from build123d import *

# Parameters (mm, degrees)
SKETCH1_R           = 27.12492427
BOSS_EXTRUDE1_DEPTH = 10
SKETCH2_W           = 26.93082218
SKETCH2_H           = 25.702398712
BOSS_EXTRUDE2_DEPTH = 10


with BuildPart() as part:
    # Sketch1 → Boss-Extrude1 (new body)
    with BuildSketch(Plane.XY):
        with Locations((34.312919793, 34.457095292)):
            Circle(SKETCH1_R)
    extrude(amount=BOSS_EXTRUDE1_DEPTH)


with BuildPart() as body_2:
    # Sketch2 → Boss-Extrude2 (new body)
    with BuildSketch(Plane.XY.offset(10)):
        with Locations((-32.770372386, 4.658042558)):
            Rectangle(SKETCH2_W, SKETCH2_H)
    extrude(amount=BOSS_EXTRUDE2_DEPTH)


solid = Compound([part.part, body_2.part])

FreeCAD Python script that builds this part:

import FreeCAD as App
import Part
import Sketcher

V = App.Vector
Q = App.Units.Quantity


def add_polygon(sketch, points):
    """Adds a closed chain of lines whose ends are joined by coincident constraints."""
    first, n = sketch.GeometryCount, len(points)
    for a, b in zip(points, points[1:] + points[:1]):
        sketch.addGeometry(Part.LineSegment(App.Vector(*a, 0), App.Vector(*b, 0)), False)
    for i in range(n):
        sketch.addConstraint(Sketcher.Constraint("Coincident", first + i, 2, first + (i + 1) % n, 1))

doc = App.newDocument("Part")
body = doc.addObject("PartDesign::Body", "Body")

sketch1 = body.newObject("Sketcher::SketchObject", "Sketch")
sketch1.AttachmentSupport = (doc.getObject("XY_Plane"), [""])
sketch1.MapMode = "FlatFace"
sketch1.addGeometry(Part.Circle(V(34, 34, 0), V(0, 0, 1), 27), False)
sketch1.addConstraint([
    Sketcher.Constraint("Diameter", 0, Q("54.249849 mm")),
    Sketcher.Constraint("DistanceX", -1, 1, 0, 3, Q("34.31292 mm")),
    Sketcher.Constraint("DistanceY", -1, 1, 0, 3, Q("34.457095 mm")),
])
pad1 = body.newObject("PartDesign::Pad", "Pad")
pad1.Profile = sketch1
pad1.Length = 10
body2 = doc.addObject("PartDesign::Body", "Body001")

sketch2 = body2.newObject("Sketcher::SketchObject", "Sketch001")
sketch2.AttachmentSupport = (doc.getObject("XY_Plane001"), [""])
sketch2.MapMode = "FlatFace"
sketch2.AttachmentOffset = App.Placement(V(0, 0, 10), App.Rotation())
add_polygon(sketch2, [(-46, 18), (-46, -8), (-19, -8), (-19, 18)])
sketch2.addConstraint([
    Sketcher.Constraint("Vertical", 0),
    Sketcher.Constraint("Horizontal", 1),
    Sketcher.Constraint("Vertical", 2),
    Sketcher.Constraint("Horizontal", 3),
    Sketcher.Constraint("DistanceY", 0, 2, 0, 1, Q("25.702399 mm")),
    Sketcher.Constraint("DistanceX", 1, 1, 1, 2, Q("26.930822 mm")),
    Sketcher.Constraint("DistanceX", 1, 2, -1, 1, Q("19.304961 mm")),
    Sketcher.Constraint("DistanceY", -1, 1, 2, 2, Q("17.509242 mm")),
])
pad2 = body2.newObject("PartDesign::Pad", "Pad001")
pad2.Profile = sketch2
pad2.Length = 10

doc.recompute()
